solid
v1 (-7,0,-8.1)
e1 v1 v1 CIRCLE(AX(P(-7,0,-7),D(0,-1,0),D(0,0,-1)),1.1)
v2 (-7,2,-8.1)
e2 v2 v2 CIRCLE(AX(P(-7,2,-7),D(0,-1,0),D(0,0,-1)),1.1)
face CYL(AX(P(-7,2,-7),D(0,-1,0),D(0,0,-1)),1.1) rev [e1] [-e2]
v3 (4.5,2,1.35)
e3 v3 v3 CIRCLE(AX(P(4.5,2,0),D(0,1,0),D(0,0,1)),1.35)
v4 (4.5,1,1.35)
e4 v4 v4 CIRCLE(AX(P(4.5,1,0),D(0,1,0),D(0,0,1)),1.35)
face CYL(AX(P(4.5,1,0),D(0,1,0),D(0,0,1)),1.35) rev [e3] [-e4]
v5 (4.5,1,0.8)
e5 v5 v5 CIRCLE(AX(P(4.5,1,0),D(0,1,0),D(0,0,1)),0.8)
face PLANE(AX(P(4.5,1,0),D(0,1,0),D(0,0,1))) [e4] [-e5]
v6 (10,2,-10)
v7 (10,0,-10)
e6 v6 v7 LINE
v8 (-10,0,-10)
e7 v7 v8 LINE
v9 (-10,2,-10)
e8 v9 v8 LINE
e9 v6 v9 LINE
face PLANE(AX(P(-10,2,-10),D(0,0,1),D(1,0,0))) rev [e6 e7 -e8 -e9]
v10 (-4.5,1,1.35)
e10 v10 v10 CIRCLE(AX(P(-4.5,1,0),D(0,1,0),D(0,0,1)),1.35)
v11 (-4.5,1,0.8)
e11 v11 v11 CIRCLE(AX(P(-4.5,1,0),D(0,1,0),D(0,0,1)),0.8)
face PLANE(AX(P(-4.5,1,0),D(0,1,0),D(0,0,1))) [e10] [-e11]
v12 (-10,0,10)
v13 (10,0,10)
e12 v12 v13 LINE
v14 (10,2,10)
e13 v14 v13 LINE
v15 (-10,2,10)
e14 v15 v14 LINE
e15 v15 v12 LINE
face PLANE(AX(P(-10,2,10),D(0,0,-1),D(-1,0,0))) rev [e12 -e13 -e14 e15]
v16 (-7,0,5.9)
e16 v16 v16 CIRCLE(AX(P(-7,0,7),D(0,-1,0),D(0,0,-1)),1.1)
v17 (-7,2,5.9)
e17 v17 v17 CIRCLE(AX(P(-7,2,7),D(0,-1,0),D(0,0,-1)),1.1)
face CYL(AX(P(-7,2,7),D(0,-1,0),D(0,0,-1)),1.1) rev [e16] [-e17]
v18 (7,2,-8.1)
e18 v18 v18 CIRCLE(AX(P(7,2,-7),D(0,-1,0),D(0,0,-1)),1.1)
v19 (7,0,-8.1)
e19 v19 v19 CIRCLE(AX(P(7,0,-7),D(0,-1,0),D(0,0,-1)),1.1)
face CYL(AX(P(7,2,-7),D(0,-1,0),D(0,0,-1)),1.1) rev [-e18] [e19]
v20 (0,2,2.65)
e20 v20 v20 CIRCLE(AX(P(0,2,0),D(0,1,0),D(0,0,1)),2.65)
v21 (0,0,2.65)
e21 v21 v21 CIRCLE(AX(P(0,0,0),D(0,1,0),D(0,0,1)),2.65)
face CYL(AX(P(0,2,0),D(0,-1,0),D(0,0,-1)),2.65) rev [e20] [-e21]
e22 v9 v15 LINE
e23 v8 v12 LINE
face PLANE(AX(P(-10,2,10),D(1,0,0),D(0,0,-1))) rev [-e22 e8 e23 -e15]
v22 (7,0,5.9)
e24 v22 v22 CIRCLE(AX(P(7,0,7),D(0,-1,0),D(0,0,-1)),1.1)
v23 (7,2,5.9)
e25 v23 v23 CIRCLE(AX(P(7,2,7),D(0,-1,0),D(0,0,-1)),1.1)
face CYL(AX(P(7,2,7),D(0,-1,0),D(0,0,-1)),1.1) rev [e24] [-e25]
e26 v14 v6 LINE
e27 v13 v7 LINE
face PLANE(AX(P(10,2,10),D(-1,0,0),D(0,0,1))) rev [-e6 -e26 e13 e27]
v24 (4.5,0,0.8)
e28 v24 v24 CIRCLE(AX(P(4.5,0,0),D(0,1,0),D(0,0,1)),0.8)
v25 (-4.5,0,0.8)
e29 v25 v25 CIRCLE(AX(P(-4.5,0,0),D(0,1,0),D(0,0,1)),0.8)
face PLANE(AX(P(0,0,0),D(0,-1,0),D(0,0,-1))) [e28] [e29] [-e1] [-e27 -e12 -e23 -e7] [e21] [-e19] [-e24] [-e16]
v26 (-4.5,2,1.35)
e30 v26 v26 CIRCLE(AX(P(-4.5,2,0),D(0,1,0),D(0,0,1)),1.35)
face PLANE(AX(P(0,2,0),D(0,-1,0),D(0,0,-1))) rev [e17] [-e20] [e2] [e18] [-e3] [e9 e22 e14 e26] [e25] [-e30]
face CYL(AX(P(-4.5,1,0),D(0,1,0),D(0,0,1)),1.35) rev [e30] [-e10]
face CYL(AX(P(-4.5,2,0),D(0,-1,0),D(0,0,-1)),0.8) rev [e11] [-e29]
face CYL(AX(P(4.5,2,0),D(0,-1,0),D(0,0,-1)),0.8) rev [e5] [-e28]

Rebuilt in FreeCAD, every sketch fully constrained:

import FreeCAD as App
import Part
import Sketcher
from FreeCAD import Vector
Q = App.Units.Quantity


def add_polygon(sketch, points):
    """Adds a closed chain of lines whose ends are joined by coincident constraints."""
    first, n = sketch.GeometryCount, len(points)
    for a, b in zip(points, points[1:] + points[:1]):
        sketch.addGeometry(Part.LineSegment(App.Vector(*a, 0), App.Vector(*b, 0)), False)
    for i in range(n):
        sketch.addConstraint(Sketcher.Constraint("Coincident", first + i, 2, first + (i + 1) % n, 1))

doc = App.newDocument("Part")
body = doc.addObject("PartDesign::Body", "Body")

# Sketch on XZ plane
sketch1 = body.newObject("Sketcher::SketchObject", "Sketch")
sketch1.AttachmentSupport = (doc.getObject("XZ_Plane"), [""])
sketch1.MapMode = "FlatFace"
add_polygon(sketch1, [(-10, -10), (-10, 10), (10, 10), (10, -10)])  # lines 0-3
sketch1.addGeometry(Part.Circle(Vector(-4.5, 0, 0), Vector(0, 0, 1), 0.8), False)  # 4
sketch1.addGeometry(Part.Circle(Vector(0, 0, 0), Vector(0, 0, 1), 2.6), False)  # 5
sketch1.addGeometry(Part.Circle(Vector(4.5, 0, 0), Vector(0, 0, 1), 0.8), False)  # 6
sketch1.addConstraint([
    Sketcher.Constraint("Vertical", 0),
    Sketcher.Constraint("Horizontal", 1),
    Sketcher.Constraint("Vertical", 2),
    Sketcher.Constraint("Horizontal", 3),
    Sketcher.Constraint("Coincident", 5, 3, -1, 1),
    Sketcher.Constraint("Equal", 4, 6),
    Sketcher.Constraint("Symmetric", 4, 3, 6, 3, -1, 1),
    Sketcher.Constraint("Symmetric", 0, 2, 2, 2, -1, 1),
    Sketcher.Constraint("PointOnObject", 4, 3, -1),
    Sketcher.Constraint("Equal", 3, 0),
    Sketcher.Constraint("Diameter", 4, Q("1.6 mm")),
    Sketcher.Constraint("Diameter", 5, Q("5.3 mm")),
    Sketcher.Constraint("DistanceX", 1, 1, 1, 2, Q("20 mm")),
    Sketcher.Constraint("DistanceX", 4, 3, 6, 3, Q("9 mm")),
])
pad1 = body.newObject("PartDesign::Pad", "Pad")
pad1.Profile = sketch1
pad1.Length = 2
pad1.Reversed = True

# Sketch on XZ plane
sketch2 = body.newObject("Sketcher::SketchObject", "Sketch001")
sketch2.AttachmentSupport = (doc.getObject("XZ_Plane"), [""])
sketch2.MapMode = "FlatFace"
sketch2.AttachmentOffset = App.Placement(Vector(0, 0, -2), App.Rotation())
sketch2.addGeometry([
    Part.Circle(Vector(-4.5, 0, 0), Vector(0, 0, 1), 1.4),
    Part.Circle(Vector(4.5, 0, 0), Vector(0, 0, 1), 1.4),
], False)
sketch2.addConstraint([
    Sketcher.Constraint("Equal", 0, 1),
    Sketcher.Constraint("Symmetric", 0, 3, 1, 3, -1, 1),
    Sketcher.Constraint("PointOnObject", 0, 3, -1),
    Sketcher.Constraint("Diameter", 0, Q("2.7 mm")),
    Sketcher.Constraint("DistanceX", 0, 3, 1, 3, Q("9 mm")),
])
pocket1 = body.newObject("PartDesign::Pocket", "Pocket")
pocket1.Profile = sketch2
pocket1.Length = 1
pocket1.Reversed = True

# Sketch on XZ plane
sketch3 = body.newObject("Sketcher::SketchObject", "Sketch002")
sketch3.AttachmentSupport = (doc.getObject("XZ_Plane"), [""])
sketch3.MapMode = "FlatFace"
sketch3.addGeometry([
    Part.Circle(Vector(-7, 7, 0), Vector(0, 0, 1), 1.1),
    Part.Circle(Vector(7, 7, 0), Vector(0, 0, 1), 1.1),
    Part.Circle(Vector(7, -7, 0), Vector(0, 0, 1), 1.1),
    Part.Circle(Vector(-7, -7, 0), Vector(0, 0, 1), 1.1),
], False)
sketch3.addConstraint([
    Sketcher.Constraint("Equal", 0, 1),
    Sketcher.Constraint("Equal", 1, 2),
    Sketcher.Constraint("Equal", 2, 3),
    Sketcher.Constraint("Symmetric", 0, 3, 2, 3, -1, 1),
    Sketcher.Constraint("Symmetric", 1, 3, 3, 3, -1, 1),
    Sketcher.Constraint("Symmetric", 0, 3, 1, 3, -2),
    Sketcher.Constraint("Diameter", 0, Q("2.2 mm")),
    Sketcher.Constraint("DistanceX", 0, 3, -1, 1, Q("7 mm")),
    Sketcher.Constraint("DistanceY", -1, 1, 0, 3, Q("7 mm")),
])
pocket2 = body.newObject("PartDesign::Pocket", "Pocket001")
pocket2.Profile = sketch3
pocket2.Type = "ThroughAll"

doc.recompute()
